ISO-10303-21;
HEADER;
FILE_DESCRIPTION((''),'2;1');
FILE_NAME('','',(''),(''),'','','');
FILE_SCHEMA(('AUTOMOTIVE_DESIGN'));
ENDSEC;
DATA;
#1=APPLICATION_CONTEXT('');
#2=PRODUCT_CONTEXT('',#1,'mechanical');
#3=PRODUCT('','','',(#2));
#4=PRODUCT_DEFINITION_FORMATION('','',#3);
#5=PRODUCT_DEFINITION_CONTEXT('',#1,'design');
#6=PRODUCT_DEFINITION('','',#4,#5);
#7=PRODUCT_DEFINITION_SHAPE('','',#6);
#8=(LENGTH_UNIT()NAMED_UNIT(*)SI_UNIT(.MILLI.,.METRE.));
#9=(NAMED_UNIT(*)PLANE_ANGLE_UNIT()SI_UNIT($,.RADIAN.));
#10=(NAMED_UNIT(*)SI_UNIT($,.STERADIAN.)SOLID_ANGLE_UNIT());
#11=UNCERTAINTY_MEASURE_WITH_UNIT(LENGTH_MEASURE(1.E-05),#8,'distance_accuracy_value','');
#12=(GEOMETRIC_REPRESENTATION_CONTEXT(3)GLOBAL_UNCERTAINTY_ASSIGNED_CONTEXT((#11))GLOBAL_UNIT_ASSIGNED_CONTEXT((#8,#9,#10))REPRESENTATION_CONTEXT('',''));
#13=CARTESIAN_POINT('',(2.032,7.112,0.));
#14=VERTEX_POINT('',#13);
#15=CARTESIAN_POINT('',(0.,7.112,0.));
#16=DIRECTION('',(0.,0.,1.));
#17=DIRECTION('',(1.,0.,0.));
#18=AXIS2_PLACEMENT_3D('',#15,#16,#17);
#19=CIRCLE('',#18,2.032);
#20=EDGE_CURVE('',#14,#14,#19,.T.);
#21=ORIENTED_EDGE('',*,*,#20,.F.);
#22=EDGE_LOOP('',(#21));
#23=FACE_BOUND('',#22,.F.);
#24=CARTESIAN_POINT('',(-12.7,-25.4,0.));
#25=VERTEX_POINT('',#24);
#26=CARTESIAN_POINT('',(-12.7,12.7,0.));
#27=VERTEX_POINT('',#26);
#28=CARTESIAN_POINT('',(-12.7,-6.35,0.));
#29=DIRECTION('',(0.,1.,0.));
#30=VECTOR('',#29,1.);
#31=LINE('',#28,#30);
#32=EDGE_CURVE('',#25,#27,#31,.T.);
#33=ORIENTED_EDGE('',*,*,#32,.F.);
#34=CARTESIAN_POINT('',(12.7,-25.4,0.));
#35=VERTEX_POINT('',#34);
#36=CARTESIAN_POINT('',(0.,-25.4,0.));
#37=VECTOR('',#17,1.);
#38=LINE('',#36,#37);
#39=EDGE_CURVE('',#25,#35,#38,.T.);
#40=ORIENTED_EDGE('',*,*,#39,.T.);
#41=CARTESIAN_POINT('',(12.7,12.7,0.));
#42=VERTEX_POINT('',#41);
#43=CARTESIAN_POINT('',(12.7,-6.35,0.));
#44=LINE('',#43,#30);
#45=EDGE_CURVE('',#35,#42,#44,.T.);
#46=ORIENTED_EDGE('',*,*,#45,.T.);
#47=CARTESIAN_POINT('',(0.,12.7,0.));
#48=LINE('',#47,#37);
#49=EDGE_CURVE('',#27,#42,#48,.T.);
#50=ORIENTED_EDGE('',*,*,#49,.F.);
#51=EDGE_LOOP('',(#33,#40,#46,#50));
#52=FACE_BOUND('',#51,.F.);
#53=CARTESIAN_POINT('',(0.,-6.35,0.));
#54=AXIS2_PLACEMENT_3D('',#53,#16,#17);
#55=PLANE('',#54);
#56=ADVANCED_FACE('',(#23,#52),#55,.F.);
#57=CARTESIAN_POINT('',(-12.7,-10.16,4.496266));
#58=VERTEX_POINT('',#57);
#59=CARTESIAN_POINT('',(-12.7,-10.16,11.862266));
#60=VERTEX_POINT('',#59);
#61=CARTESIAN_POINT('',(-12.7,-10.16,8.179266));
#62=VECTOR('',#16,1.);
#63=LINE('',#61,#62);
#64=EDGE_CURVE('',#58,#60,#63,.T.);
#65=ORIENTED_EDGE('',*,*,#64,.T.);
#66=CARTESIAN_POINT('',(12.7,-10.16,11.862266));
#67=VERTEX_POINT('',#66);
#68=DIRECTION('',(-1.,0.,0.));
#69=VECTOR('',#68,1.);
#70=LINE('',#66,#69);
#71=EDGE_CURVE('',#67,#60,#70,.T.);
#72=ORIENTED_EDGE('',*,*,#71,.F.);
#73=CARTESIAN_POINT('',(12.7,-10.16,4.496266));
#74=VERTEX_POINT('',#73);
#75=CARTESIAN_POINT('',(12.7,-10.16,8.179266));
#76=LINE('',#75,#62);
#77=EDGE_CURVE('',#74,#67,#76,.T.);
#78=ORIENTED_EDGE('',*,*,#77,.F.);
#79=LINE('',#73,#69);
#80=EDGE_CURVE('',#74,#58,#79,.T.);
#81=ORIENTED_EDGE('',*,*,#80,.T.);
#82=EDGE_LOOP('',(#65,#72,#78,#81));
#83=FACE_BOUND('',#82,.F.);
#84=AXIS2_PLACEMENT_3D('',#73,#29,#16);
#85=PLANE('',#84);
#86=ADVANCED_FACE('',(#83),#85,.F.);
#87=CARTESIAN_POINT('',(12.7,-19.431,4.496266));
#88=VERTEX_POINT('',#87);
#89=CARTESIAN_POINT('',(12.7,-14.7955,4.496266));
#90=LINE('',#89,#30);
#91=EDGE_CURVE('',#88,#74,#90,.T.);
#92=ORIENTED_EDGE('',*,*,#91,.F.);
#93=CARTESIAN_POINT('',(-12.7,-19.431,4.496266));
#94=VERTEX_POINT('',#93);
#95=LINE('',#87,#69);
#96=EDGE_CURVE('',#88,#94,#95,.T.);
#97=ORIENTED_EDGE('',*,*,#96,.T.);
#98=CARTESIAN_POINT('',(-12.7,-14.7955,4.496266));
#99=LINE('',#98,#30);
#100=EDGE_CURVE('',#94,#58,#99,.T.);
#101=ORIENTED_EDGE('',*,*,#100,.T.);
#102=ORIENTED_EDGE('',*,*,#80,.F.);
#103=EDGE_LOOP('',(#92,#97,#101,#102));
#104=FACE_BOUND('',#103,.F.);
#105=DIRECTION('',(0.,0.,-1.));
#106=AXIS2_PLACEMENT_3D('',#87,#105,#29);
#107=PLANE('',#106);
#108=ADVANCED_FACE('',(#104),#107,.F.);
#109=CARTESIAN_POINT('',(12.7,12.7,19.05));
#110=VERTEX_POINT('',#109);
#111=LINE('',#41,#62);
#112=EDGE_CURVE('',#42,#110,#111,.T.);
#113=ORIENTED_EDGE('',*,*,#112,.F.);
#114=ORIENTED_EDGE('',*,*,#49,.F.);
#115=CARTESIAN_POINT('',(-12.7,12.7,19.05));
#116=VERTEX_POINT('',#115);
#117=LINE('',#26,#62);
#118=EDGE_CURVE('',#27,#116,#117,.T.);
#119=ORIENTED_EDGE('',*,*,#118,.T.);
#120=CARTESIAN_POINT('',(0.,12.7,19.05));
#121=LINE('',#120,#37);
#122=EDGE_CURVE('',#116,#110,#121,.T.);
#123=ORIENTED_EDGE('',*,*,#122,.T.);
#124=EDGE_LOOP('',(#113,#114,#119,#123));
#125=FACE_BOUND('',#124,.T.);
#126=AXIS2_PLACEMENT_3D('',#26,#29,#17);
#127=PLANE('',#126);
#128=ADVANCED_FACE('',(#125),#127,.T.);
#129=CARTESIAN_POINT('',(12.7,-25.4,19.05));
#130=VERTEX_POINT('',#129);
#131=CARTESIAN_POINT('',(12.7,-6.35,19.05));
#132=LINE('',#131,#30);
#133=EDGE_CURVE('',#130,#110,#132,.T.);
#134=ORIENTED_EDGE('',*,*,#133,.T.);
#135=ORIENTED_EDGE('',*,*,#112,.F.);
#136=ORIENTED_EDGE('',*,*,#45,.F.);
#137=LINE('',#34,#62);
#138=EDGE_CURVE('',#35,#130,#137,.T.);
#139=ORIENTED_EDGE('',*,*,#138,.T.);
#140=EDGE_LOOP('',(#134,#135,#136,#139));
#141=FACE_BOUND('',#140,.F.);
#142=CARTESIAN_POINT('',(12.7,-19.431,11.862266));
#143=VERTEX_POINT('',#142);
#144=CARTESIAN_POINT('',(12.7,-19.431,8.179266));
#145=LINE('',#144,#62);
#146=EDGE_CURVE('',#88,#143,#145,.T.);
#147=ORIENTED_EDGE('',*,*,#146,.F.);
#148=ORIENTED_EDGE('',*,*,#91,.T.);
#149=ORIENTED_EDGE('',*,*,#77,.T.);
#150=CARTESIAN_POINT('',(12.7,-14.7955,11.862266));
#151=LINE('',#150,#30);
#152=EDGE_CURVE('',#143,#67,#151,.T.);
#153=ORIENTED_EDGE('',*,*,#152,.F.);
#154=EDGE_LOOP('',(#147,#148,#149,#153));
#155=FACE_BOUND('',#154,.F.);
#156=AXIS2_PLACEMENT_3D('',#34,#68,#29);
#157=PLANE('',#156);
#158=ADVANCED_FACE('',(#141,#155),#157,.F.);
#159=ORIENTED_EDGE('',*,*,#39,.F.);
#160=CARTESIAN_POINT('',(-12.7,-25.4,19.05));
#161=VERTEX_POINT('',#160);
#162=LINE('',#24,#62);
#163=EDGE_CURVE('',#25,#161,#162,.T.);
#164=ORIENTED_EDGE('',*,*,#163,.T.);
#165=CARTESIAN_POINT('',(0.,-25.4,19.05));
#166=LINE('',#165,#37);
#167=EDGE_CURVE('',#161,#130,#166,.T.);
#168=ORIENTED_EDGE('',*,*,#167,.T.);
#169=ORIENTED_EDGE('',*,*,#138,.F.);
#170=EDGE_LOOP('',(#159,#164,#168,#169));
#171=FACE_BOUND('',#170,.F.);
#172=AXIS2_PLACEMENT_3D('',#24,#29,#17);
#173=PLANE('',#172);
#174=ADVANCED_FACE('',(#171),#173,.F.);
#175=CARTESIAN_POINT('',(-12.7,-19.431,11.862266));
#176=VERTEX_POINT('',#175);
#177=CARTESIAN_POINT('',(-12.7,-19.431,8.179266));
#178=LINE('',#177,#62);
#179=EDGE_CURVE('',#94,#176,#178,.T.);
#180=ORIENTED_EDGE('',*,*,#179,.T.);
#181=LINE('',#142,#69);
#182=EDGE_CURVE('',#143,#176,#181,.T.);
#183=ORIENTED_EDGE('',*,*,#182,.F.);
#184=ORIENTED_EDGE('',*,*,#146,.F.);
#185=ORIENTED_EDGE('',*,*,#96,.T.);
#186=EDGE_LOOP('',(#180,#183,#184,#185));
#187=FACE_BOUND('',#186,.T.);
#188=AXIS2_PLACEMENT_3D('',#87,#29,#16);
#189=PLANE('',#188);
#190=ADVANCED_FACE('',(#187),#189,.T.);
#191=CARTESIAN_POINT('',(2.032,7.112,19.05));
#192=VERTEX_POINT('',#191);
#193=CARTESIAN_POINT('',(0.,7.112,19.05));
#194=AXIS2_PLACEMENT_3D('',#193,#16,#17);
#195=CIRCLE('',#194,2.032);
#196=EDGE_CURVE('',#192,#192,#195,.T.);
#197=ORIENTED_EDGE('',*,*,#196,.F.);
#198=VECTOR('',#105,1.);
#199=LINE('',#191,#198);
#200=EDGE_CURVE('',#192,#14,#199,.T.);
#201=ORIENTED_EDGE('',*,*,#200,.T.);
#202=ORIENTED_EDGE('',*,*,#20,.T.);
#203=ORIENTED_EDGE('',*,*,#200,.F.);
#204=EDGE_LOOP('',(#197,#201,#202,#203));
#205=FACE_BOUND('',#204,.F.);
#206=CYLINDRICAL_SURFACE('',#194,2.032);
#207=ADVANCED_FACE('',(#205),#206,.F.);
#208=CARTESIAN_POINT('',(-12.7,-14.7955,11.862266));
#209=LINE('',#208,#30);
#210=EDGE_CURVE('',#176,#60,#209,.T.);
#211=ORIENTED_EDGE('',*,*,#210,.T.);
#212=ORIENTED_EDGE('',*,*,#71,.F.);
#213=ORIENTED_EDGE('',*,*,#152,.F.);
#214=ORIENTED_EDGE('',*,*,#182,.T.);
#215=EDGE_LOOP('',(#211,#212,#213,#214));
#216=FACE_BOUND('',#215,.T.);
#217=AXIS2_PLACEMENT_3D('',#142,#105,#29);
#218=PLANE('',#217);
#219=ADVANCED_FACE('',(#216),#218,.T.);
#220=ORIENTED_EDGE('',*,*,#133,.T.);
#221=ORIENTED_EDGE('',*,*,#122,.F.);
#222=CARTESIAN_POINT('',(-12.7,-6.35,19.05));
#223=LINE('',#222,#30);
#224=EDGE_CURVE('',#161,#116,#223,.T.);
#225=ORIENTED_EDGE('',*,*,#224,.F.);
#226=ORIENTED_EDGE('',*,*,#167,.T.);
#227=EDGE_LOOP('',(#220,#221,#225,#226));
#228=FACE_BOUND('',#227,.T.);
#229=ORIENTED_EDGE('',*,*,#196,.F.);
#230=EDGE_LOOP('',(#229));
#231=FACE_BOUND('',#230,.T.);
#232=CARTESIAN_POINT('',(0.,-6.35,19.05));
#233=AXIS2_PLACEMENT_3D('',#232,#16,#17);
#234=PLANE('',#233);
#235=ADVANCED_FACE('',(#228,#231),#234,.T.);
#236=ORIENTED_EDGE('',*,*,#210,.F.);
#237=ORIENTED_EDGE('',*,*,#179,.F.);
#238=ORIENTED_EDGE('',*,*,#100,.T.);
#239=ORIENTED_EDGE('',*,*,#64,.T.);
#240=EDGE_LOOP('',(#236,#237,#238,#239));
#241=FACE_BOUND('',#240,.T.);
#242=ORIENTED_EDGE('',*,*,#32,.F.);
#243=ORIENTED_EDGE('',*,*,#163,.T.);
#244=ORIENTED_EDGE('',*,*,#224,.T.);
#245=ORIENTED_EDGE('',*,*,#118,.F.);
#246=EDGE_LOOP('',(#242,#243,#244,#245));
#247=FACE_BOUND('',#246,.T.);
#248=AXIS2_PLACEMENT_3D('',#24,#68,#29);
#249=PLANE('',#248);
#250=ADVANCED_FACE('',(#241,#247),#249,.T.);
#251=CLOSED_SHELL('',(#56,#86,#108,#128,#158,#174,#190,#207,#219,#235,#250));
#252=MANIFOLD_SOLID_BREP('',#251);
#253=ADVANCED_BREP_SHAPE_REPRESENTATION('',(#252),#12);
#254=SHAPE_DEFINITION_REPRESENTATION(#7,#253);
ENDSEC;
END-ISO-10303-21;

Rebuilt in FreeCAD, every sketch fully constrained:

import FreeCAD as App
import Part
import Sketcher
Q = App.Units.Quantity


def add_polygon(sketch, points):
    """Adds a closed chain of lines whose ends are joined by coincident constraints."""
    first, n = sketch.GeometryCount, len(points)
    for a, b in zip(points, points[1:] + points[:1]):
        sketch.addGeometry(Part.LineSegment(App.Vector(*a, 0), App.Vector(*b, 0)), False)
    for i in range(n):
        sketch.addConstraint(Sketcher.Constraint("Coincident", first + i, 2, first + (i + 1) % n, 1))

doc = App.newDocument("Part")
body = doc.addObject("PartDesign::Body", "Body")

# Sketch on XY plane
sketch1 = body.newObject("Sketcher::SketchObject", "Sketch")
sketch1.AttachmentSupport = (doc.getObject("XY_Plane"), [""])
sketch1.MapMode = "FlatFace"
add_polygon(sketch1, [(-13, 13), (-13, -25), (13, -25), (13, 13)])  # lines 0-3
sketch1.addConstraint([
    Sketcher.Constraint("Vertical", 0),
    Sketcher.Constraint("Horizontal", 1),
    Sketcher.Constraint("Vertical", 2),
    Sketcher.Constraint("Horizontal", 3),
    Sketcher.Constraint("DistanceX", 1, 1, 1, 2, Q("1 in")),
    Sketcher.Constraint("DistanceY", 0, 2, 0, 1, Q("1.5 in")),
    Sketcher.Constraint("DistanceY", 0, 2, -1, 1, Q("1 in")),
    Sketcher.Constraint("DistanceX", 0, 2, -1, 1, Q("0.5 in")),
])
pad1 = body.newObject("PartDesign::Pad", "Pad")
pad1.Profile = sketch1
pad1.Length = Q("0.75 in")

# Sketch on XY plane
sketch2 = body.newObject("Sketcher::SketchObject", "Sketch001")
sketch2.AttachmentSupport = (doc.getObject("XY_Plane"), [""])
sketch2.MapMode = "FlatFace"
sketch2.AttachmentOffset = App.Placement(App.Vector(0, 0, 0.75 * 25.4), App.Rotation())
sketch2.addGeometry(Part.Circle(App.Vector(0, 7.1, 0), App.Vector(0, 0, 1), 2), False)
sketch2.addConstraint([
    Sketcher.Constraint("PointOnObject", 0, 3, -2),
    Sketcher.Constraint("Diameter", 0, Q("0.16 in")),
    Sketcher.Constraint("DistanceY", -1, 1, 0, 3, Q("0.28 in")),
])
pocket1 = body.newObject("PartDesign::Pocket", "Pocket")
pocket1.Profile = sketch2
pocket1.Length = Q("1 in")

# Sketch on YZ plane
sketch3 = body.newObject("Sketcher::SketchObject", "Sketch002")
sketch3.AttachmentSupport = (doc.getObject("YZ_Plane"), [""])
sketch3.MapMode = "FlatFace"
sketch3.AttachmentOffset = App.Placement(App.Vector(0, 0, 0.5 * 25.4), App.Rotation())
add_polygon(sketch3, [(-19, 12), (-19, 4), (-10, 4), (-10, 12)])  # lines 0-3
sketch3.addConstraint([
    Sketcher.Constraint("Vertical", 0),
    Sketcher.Constraint("Horizontal", 1),
    Sketcher.Constraint("Vertical", 2),
    Sketcher.Constraint("Horizontal", 3),
    Sketcher.Constraint("DistanceY", 0, 2, 0, 1, Q("0.29 in")),
    Sketcher.Constraint("DistanceX", 1, 2, -1, 1, Q("0.4 in")),
    Sketcher.Constraint("DistanceX", 1, 1, 1, 2, Q("0.365 in")),
    Sketcher.Constraint("DistanceY", -1, 1, 0, 2, Q("4.496266 mm")),
])
pocket2 = body.newObject("PartDesign::Pocket", "Pocket001")
pocket2.Profile = sketch3
pocket2.Length = Q("1 in")

doc.recompute()
